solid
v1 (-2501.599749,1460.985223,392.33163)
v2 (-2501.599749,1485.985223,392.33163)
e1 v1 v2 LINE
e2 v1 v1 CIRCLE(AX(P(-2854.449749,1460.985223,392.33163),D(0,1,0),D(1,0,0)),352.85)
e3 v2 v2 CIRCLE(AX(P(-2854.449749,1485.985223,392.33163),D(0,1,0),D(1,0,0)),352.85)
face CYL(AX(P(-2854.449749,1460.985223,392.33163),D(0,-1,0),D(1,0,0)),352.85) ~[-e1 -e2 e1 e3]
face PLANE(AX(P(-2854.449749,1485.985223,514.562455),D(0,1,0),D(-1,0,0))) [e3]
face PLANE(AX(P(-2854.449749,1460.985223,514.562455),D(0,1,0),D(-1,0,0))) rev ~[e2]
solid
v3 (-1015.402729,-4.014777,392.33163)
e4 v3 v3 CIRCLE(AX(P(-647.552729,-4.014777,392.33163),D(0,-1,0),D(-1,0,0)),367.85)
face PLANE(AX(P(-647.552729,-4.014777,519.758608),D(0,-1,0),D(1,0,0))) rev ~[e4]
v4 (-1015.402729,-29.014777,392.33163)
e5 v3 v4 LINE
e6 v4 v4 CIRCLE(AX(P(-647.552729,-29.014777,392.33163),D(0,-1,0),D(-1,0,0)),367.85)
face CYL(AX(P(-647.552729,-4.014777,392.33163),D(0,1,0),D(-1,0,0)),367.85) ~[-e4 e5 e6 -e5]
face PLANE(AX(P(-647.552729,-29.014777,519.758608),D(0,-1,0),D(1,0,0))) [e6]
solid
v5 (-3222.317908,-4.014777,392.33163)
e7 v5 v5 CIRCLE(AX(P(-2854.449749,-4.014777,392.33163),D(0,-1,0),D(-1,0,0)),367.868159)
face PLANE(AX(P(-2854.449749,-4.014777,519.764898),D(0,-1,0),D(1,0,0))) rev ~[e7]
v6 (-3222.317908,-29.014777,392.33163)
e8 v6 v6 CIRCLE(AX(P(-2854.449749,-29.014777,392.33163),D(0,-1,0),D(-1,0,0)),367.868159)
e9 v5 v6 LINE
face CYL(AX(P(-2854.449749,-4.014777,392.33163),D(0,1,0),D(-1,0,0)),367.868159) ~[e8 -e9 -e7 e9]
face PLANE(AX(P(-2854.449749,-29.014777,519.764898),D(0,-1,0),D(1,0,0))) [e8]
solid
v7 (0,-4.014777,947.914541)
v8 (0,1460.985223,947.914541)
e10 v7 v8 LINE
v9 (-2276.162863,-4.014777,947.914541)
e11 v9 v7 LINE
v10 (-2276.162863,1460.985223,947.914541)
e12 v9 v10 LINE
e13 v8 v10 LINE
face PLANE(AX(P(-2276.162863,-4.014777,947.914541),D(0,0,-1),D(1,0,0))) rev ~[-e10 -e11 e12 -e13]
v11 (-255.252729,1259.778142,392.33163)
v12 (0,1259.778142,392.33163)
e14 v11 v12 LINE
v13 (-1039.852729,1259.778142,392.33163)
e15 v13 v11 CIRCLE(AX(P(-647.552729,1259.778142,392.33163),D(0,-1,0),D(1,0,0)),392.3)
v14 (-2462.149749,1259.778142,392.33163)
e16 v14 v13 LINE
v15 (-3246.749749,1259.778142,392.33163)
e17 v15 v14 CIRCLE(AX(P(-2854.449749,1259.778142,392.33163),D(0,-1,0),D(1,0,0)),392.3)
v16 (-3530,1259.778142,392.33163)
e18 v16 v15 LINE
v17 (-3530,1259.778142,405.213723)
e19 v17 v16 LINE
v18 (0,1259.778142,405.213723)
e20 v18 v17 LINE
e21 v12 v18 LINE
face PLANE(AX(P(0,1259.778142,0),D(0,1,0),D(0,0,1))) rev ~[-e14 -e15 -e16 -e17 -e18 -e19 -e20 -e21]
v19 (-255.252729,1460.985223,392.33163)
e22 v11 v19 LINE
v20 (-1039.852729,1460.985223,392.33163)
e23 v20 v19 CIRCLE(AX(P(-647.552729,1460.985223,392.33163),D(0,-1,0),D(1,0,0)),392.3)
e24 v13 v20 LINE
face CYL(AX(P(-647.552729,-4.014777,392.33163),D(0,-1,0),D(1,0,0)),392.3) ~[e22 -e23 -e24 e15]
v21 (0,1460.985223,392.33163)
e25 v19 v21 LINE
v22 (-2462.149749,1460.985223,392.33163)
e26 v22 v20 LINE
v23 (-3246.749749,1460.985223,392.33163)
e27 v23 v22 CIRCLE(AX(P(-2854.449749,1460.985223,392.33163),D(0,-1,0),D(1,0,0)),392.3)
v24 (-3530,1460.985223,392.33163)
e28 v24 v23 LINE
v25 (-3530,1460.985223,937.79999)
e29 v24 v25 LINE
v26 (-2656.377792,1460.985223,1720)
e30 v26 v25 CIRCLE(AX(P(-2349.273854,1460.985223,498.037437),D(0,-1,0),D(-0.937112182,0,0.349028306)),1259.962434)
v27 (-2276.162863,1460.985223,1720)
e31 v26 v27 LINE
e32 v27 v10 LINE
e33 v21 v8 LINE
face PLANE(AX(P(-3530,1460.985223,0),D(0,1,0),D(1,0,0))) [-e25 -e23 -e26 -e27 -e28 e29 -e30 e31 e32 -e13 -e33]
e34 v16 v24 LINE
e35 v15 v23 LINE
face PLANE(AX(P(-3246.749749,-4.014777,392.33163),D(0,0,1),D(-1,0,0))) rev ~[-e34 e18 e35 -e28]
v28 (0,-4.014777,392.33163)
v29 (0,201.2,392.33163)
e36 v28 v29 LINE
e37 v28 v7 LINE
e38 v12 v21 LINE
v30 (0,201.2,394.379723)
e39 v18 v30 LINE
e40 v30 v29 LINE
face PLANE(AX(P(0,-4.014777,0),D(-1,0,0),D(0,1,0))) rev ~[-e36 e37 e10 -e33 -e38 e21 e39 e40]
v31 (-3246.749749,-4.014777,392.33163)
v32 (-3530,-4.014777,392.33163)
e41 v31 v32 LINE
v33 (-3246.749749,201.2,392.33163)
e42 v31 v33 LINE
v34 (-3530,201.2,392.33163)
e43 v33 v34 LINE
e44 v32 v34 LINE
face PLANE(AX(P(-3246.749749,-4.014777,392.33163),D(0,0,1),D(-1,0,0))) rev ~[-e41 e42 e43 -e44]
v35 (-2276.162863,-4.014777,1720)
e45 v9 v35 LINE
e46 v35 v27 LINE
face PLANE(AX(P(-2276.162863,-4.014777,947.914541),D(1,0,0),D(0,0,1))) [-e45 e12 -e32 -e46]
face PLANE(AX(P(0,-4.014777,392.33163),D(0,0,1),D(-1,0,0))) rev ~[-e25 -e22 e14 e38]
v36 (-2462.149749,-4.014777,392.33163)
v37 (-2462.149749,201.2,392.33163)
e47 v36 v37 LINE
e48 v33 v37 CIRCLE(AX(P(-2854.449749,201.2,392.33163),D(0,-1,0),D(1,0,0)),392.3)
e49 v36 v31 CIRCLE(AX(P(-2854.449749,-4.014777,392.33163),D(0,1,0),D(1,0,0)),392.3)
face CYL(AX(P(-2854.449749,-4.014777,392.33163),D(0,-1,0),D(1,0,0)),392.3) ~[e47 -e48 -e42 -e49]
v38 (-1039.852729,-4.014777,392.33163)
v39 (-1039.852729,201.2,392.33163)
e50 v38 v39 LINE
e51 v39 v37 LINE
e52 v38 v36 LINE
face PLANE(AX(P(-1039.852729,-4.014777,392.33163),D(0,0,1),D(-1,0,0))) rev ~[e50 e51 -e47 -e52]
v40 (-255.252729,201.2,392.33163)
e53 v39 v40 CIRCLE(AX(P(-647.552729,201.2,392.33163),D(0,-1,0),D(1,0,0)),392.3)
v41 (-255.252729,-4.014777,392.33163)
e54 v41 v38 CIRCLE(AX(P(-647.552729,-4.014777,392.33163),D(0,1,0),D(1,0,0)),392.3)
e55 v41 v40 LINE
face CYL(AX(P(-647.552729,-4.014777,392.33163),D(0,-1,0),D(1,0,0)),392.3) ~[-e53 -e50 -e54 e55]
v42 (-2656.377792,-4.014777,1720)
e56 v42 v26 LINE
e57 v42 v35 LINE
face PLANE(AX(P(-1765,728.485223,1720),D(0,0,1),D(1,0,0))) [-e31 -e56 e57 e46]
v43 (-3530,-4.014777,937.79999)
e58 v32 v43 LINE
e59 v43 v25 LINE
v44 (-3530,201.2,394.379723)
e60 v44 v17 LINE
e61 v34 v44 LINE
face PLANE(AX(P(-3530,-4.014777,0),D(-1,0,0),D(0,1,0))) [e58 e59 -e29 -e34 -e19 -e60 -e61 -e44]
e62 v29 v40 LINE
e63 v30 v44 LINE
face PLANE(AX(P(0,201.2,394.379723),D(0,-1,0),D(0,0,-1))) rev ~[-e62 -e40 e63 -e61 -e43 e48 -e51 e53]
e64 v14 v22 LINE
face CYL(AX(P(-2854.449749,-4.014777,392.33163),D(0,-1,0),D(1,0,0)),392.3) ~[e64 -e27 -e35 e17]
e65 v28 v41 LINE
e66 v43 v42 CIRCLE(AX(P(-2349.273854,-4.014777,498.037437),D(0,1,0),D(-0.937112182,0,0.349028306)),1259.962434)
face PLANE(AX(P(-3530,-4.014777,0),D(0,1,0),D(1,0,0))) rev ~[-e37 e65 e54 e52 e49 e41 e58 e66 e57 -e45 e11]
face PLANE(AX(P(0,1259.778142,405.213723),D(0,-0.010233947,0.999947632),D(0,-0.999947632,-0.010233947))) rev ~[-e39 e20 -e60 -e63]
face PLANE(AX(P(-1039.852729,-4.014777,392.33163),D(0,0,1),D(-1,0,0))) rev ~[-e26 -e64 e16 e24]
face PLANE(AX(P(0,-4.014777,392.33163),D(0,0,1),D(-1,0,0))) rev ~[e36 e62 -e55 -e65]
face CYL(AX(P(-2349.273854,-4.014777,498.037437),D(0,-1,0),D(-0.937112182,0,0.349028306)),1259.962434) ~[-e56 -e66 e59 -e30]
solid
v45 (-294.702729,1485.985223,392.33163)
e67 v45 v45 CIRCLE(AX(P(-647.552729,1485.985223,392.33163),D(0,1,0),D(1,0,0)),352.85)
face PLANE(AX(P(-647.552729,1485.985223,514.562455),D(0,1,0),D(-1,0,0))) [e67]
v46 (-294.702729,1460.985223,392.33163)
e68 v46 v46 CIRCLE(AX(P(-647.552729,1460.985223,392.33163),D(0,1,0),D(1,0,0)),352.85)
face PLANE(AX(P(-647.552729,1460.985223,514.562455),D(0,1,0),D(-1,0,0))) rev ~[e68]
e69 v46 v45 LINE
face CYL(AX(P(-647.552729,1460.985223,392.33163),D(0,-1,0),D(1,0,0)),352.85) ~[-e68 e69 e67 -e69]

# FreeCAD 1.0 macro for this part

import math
import FreeCAD as App
import Part
import Sketcher

V = App.Vector


def add_polygon(sketch, points):
    """Adds a closed chain of lines whose ends are joined by coincident constraints."""
    first, n = sketch.GeometryCount, len(points)
    for a, b in zip(points, points[1:] + points[:1]):
        sketch.addGeometry(Part.LineSegment(App.Vector(*a, 0), App.Vector(*b, 0)), False)
    for i in range(n):
        sketch.addConstraint(Sketcher.Constraint("Coincident", first + i, 2, first + (i + 1) % n, 1))

doc = App.newDocument("Part")
body = doc.addObject("PartDesign::Body", "Body")

# Sketch on XY plane
sketch1 = doc.addObject("Sketcher::SketchObject", "Sketch")
body.addObject(sketch1)
sketch1.AttachmentSupport = (doc.XY_Plane, [""])
sketch1.MapMode = "FlatFace"
add_polygon(sketch1, [(-3530, 1461), (-3530, -4), (0, -4), (0, 1461)])  # lines 0-3
sketch1.addConstraint(Sketcher.Constraint("Vertical", 0))
sketch1.addConstraint(Sketcher.Constraint("Horizontal", 1))
sketch1.addConstraint(Sketcher.Constraint("Vertical", 2))
sketch1.addConstraint(Sketcher.Constraint("Horizontal", 3))
sketch1.addConstraint(Sketcher.Constraint("PointOnObject", 1, 2, -2))
sketch1.addConstraint(Sketcher.Constraint("DistanceX", 1, 1, 1, 2, 3530.0))
sketch1.addConstraint(Sketcher.Constraint("DistanceY", 0, 2, 0, 1, 1465.0))
sketch1.addConstraint(Sketcher.Constraint("DistanceY", 0, 2, -1, 1, 4.014777))
pad1 = doc.addObject("PartDesign::Pad", "Pad")
body.addObject(pad1)
pad1.Profile = sketch1
pad1.Length = 1720

# Sketch on YZ plane
sketch2 = doc.addObject("Sketcher::SketchObject", "Sketch001")
body.addObject(sketch2)
sketch2.AttachmentSupport = (doc.YZ_Plane, [""])
sketch2.MapMode = "FlatFace"
add_polygon(sketch2, [(201, 394), (201, 0), (1260, 0), (1260, 405)])  # lines 0-3
sketch2.addConstraint(Sketcher.Constraint("Vertical", 0))
sketch2.addConstraint(Sketcher.Constraint("Horizontal", 1))
sketch2.addConstraint(Sketcher.Constraint("Vertical", 2))
sketch2.addConstraint(Sketcher.Constraint("PointOnObject", 0, 2, -1))
sketch2.addConstraint(Sketcher.Constraint("DistanceX", -1, 1, 0, 2, 201.2))
sketch2.addConstraint(Sketcher.Constraint("DistanceY", 3, 2, 2, 2, 10.834))
sketch2.addConstraint(Sketcher.Constraint("DistanceX", 1, 1, 1, 2, 1058.578142))
sketch2.addConstraint(Sketcher.Constraint("DistanceY", 0, 2, 0, 1, 394.379723))
pocket1 = doc.addObject("PartDesign::Pocket", "Pocket")
body.addObject(pocket1)
pocket1.Profile = sketch2
pocket1.Length = 3600

# Sketch on XZ plane
sketch3 = doc.addObject("Sketcher::SketchObject", "Sketch002")
body.addObject(sketch3)
sketch3.AttachmentSupport = (doc.XZ_Plane, [""])
sketch3.MapMode = "FlatFace"
sketch3.AttachmentOffset = App.Placement(V(0, 0, 4.014777), App.Rotation())
sketch3.addGeometry(Part.LineSegment(V(-3530, 392, 0), V(-3530, 0, 0)), False)  # 0
sketch3.addGeometry(Part.LineSegment(V(-3530, 0, 0), V(0, 0, 0)), False)  # 1
sketch3.addGeometry(Part.LineSegment(V(0, 0, 0), V(0, 392, 0)), False)  # 2
sketch3.addGeometry(Part.LineSegment(V(0, 392, 0), V(-255, 392, 0)), False)  # 3
sketch3.addGeometry(Part.ArcOfCircle(Part.Circle(V(-648, 392, 0), V(0, 0, 1), 392), math.radians(180), math.radians(360)), False)  # 4
sketch3.addGeometry(Part.LineSegment(V(-1040, 392, 0), V(-2462, 392, 0)), False)  # 5
sketch3.addGeometry(Part.ArcOfCircle(Part.Circle(V(-2854, 392, 0), V(0, 0, 1), 392), math.radians(180), math.radians(360)), False)  # 6
sketch3.addGeometry(Part.LineSegment(V(-3247, 392, 0), V(-3530, 392, 0)), False)  # 7
add_polygon(sketch3, [(-2276, 1720), (-2276, 948), (0, 948), (0, 1720)])  # lines 8-11
sketch3.addGeometry(Part.LineSegment(V(-3530, 1720, 0), V(-3530, 938, 0)), False)  # 12
sketch3.addGeometry(Part.ArcOfCircle(Part.Circle(V(-2349, 498, 0), V(0, 0, 1), 1260), math.radians(104), math.radians(160)), False)  # 13
sketch3.addGeometry(Part.LineSegment(V(-2656, 1720, 0), V(-3530, 1720, 0)), False)  # 14
sketch3.addConstraint(Sketcher.Constraint("Coincident", 0, 2, 1, 1))
sketch3.addConstraint(Sketcher.Constraint("Coincident", 1, 2, 2, 1))
sketch3.addConstraint(Sketcher.Constraint("Coincident", 2, 2, 3, 1))
sketch3.addConstraint(Sketcher.Constraint("Coincident", 3, 2, 4, 2))
sketch3.addConstraint(Sketcher.Constraint("Coincident", 4, 1, 5, 1))
sketch3.addConstraint(Sketcher.Constraint("Coincident", 5, 2, 6, 2))
sketch3.addConstraint(Sketcher.Constraint("Coincident", 6, 1, 7, 1))
sketch3.addConstraint(Sketcher.Constraint("Coincident", 7, 2, 0, 1))
sketch3.addConstraint(Sketcher.Constraint("Coincident", 12, 2, 13, 2))
sketch3.addConstraint(Sketcher.Constraint("Coincident", 13, 1, 14, 1))
sketch3.addConstraint(Sketcher.Constraint("Coincident", 14, 2, 12, 1))
sketch3.addConstraint(Sketcher.Constraint("Vertical", 0))
sketch3.addConstraint(Sketcher.Constraint("Horizontal", 1))
sketch3.addConstraint(Sketcher.Constraint("Vertical", 2))
sketch3.addConstraint(Sketcher.Constraint("Horizontal", 3))
sketch3.addConstraint(Sketcher.Constraint("Horizontal", 5))
sketch3.addConstraint(Sketcher.Constraint("Horizontal", 7))
sketch3.addConstraint(Sketcher.Constraint("Vertical", 8))
sketch3.addConstraint(Sketcher.Constraint("Horizontal", 9))
sketch3.addConstraint(Sketcher.Constraint("Vertical", 10))
sketch3.addConstraint(Sketcher.Constraint("Horizontal", 11))
sketch3.addConstraint(Sketcher.Constraint("Vertical", 12))
sketch3.addConstraint(Sketcher.Constraint("Horizontal", 14))
sketch3.addConstraint(Sketcher.Constraint("Coincident", 1, 2, -1, 1))
sketch3.addConstraint(Sketcher.Constraint("Equal", 4, 6))
sketch3.addConstraint(Sketcher.Constraint("PointOnObject", 9, 2, -2))
sketch3.addConstraint(Sketcher.Constraint("Horizontal", 4, 3, 6, 3))
sketch3.addConstraint(Sketcher.Constraint("Horizontal", 6, 3, 2, 2))
sketch3.addConstraint(Sketcher.Constraint("Horizontal", 3, 2, 4, 1))
sketch3.addConstraint(Sketcher.Constraint("Horizontal", 11, 2, 13, 1))
sketch3.addConstraint(Sketcher.Constraint("Vertical", 7, 2, 12, 2))
sketch3.addConstraint(Sketcher.Constraint("Equal", 0, 2))
sketch3.addConstraint(Sketcher.Constraint("Radius", 4, 392.3))
sketch3.addConstraint(Sketcher.Constraint("DistanceX", 1, 1, 1, 2, 3530.0))
sketch3.addConstraint(Sketcher.Constraint("DistanceY", -1, 1, 10, 2, 1720.0))
sketch3.addConstraint(Sketcher.Constraint("Radius", 13, 1259.962434))
sketch3.addConstraint(Sketcher.Constraint("DistanceX", 3, 2, 3, 1, 255.252729))
sketch3.addConstraint(Sketcher.Constraint("DistanceX", 5, 2, 5, 1, 1422.29702))
sketch3.addConstraint(Sketcher.Constraint("DistanceY", 0, 2, 0, 1, 392.33163))
sketch3.addConstraint(Sketcher.Constraint("DistanceY", 8, 2, 8, 1, 772.085459))
sketch3.addConstraint(Sketcher.Constraint("DistanceY", 12, 2, 12, 1, 782.20001))
sketch3.addConstraint(Sketcher.Constraint("DistanceX", 9, 1, 9, 2, 2276.162863))
sketch3.addConstraint(Sketcher.Constraint("DistanceX", 14, 2, 14, 1, 873.622208))
pocket2 = doc.addObject("PartDesign::Pocket", "Pocket001")
body.addObject(pocket2)
pocket2.Profile = sketch3
pocket2.Length = 2000
body2 = doc.addObject("PartDesign::Body", "Body001")

# Sketch on XZ plane
sketch4 = doc.addObject("Sketcher::SketchObject", "Sketch003")
body2.addObject(sketch4)
sketch4.AttachmentSupport = (doc.getObject("XZ_Plane001"), [""])
sketch4.MapMode = "FlatFace"
sketch4.AttachmentOffset = App.Placement(V(0, 0, 4.014777), App.Rotation())
sketch4.addGeometry(Part.Circle(V(-2854, 392, 0), V(0, 0, 1), 368), False)
sketch4.addConstraint(Sketcher.Constraint("Diameter", 0, 735.736317))
sketch4.addConstraint(Sketcher.Constraint("DistanceX", 0, 3, -1, 1, 2854.449749))
sketch4.addConstraint(Sketcher.Constraint("DistanceY", -1, 1, 0, 3, 392.33163))
pad2 = doc.addObject("PartDesign::Pad", "Pad001")
body2.addObject(pad2)
pad2.Profile = sketch4
pad2.Length = 25
body3 = doc.addObject("PartDesign::Body", "Body002")

# Sketch on XZ plane
sketch5 = doc.addObject("Sketcher::SketchObject", "Sketch004")
body3.addObject(sketch5)
sketch5.AttachmentSupport = (doc.getObject("XZ_Plane002"), [""])
sketch5.MapMode = "FlatFace"
sketch5.AttachmentOffset = App.Placement(V(0, 0, 4.014777), App.Rotation())
sketch5.addGeometry(Part.Circle(V(-648, 392, 0), V(0, 0, 1), 368), False)
sketch5.addConstraint(Sketcher.Constraint("Diameter", 0, 735.7))
sketch5.addConstraint(Sketcher.Constraint("DistanceX", 0, 3, -1, 1, 647.552729))
sketch5.addConstraint(Sketcher.Constraint("DistanceY", -1, 1, 0, 3, 392.33163))
pad3 = doc.addObject("PartDesign::Pad", "Pad002")
body3.addObject(pad3)
pad3.Profile = sketch5
pad3.Length = 25
body4 = doc.addObject("PartDesign::Body", "Body003")

# Sketch on XZ plane
sketch6 = doc.addObject("Sketcher::SketchObject", "Sketch005")
body4.addObject(sketch6)
sketch6.AttachmentSupport = (doc.getObject("XZ_Plane003"), [""])
sketch6.MapMode = "FlatFace"
sketch6.AttachmentOffset = App.Placement(V(0, 0, -1460.985223), App.Rotation())
sketch6.addGeometry(Part.Circle(V(-648, 392, 0), V(0, 0, 1), 353), False)
sketch6.addConstraint(Sketcher.Constraint("Diameter", 0, 705.7))
sketch6.addConstraint(Sketcher.Constraint("DistanceX", 0, 3, -1, 1, 647.552729))
sketch6.addConstraint(Sketcher.Constraint("DistanceY", -1, 1, 0, 3, 392.33163))
pad4 = doc.addObject("PartDesign::Pad", "Pad003")
body4.addObject(pad4)
pad4.Profile = sketch6
pad4.Length = 25
pad4.Reversed = True
body5 = doc.addObject("PartDesign::Body", "Body004")

# Sketch on XZ plane
sketch7 = doc.addObject("Sketcher::SketchObject", "Sketch006")
body5.addObject(sketch7)
sketch7.AttachmentSupport = (doc.getObject("XZ_Plane004"), [""])
sketch7.MapMode = "FlatFace"
sketch7.AttachmentOffset = App.Placement(V(0, 0, -1460.985223), App.Rotation())
sketch7.addGeometry(Part.Circle(V(-2854, 392, 0), V(0, 0, 1), 353), False)
sketch7.addConstraint(Sketcher.Constraint("Diameter", 0, 705.7))
sketch7.addConstraint(Sketcher.Constraint("DistanceX", 0, 3, -1, 1, 2854.449749))
sketch7.addConstraint(Sketcher.Constraint("DistanceY", -1, 1, 0, 3, 392.33163))
pad5 = doc.addObject("PartDesign::Pad", "Pad004")
body5.addObject(pad5)
pad5.Profile = sketch7
pad5.Length = 25
pad5.Reversed = True

doc.recompute()
